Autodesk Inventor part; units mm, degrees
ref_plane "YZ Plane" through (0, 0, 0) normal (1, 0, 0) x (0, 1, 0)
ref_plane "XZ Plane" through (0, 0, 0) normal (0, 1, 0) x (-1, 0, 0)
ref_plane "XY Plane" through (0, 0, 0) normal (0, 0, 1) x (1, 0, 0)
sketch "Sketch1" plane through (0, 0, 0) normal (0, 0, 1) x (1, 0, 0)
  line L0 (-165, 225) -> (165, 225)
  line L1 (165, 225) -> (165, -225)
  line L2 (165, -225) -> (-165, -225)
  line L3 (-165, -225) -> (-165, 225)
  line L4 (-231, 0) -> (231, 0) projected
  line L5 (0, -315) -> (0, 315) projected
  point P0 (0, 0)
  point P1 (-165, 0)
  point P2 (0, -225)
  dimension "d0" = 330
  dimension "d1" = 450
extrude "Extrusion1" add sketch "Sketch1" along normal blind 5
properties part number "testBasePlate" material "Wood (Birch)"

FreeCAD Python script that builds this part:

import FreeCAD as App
import Part
import Sketcher
from FreeCAD import Vector


def add_polygon(sketch, points):
    """Adds a closed chain of lines whose ends are joined by coincident constraints."""
    first, n = sketch.GeometryCount, len(points)
    for a, b in zip(points, points[1:] + points[:1]):
        sketch.addGeometry(Part.LineSegment(App.Vector(*a, 0), App.Vector(*b, 0)), False)
    for i in range(n):
        sketch.addConstraint(Sketcher.Constraint("Coincident", first + i, 2, first + (i + 1) % n, 1))

doc = App.newDocument("Part")
body = doc.addObject("PartDesign::Body", "Body")

sketch1 = body.newObject("Sketcher::SketchObject", "Sketch")
sketch1.AttachmentSupport = (doc.getObject("XY_Plane"), [""])
sketch1.MapMode = "FlatFace"
add_polygon(sketch1, [(-165, 225), (-165, -225), (165, -225), (165, 225)])
sketch1.addConstraint(Sketcher.Constraint("Vertical", 0))
sketch1.addConstraint(Sketcher.Constraint("Horizontal", 1))
sketch1.addConstraint(Sketcher.Constraint("Vertical", 2))
sketch1.addConstraint(Sketcher.Constraint("Horizontal", 3))
sketch1.addConstraint(Sketcher.Constraint("Symmetric", 0, 2, 2, 2, -1, 1))
sketch1.addConstraint(Sketcher.Constraint("DistanceX", 1, 1, 1, 2, 330.0))
sketch1.addConstraint(Sketcher.Constraint("DistanceY", 0, 2, 0, 1, 450.0))
pad1 = body.newObject("PartDesign::Pad", "Pad")
pad1.Profile = sketch1
pad1.Length = 5

doc.recompute()
